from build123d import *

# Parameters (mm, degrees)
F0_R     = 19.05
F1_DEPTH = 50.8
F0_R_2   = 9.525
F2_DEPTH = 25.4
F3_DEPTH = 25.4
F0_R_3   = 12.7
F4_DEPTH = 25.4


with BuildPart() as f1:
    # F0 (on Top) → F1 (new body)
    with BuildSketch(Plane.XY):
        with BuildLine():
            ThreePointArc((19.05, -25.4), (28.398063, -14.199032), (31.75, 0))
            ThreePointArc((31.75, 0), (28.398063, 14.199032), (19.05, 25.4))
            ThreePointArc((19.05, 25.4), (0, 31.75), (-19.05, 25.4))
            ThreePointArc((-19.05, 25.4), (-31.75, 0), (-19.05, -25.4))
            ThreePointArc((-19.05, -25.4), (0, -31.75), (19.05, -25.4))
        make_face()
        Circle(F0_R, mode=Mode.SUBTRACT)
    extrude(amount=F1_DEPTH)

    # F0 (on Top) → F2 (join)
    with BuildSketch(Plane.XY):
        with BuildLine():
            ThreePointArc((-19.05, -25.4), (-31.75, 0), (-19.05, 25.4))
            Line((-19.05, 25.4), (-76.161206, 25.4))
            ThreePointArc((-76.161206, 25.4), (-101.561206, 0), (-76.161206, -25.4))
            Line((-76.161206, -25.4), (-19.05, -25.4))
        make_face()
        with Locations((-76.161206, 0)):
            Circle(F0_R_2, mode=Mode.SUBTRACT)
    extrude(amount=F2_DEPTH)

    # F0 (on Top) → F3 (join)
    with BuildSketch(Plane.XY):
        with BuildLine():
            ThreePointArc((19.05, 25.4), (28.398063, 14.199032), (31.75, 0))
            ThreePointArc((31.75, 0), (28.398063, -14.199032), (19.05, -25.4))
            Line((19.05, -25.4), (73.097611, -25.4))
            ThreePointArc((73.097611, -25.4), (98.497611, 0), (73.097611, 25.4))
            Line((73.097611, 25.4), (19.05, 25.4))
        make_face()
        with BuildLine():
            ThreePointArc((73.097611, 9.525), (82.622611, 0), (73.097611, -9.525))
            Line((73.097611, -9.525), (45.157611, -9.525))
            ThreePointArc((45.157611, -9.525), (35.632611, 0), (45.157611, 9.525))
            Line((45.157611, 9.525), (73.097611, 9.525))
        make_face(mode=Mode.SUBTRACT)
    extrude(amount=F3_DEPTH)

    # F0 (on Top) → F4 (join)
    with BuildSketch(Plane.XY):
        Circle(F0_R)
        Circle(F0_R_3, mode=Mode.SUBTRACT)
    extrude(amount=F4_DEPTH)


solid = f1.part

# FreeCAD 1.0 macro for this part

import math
import FreeCAD as App
import Part
import Sketcher

V = App.Vector
Q = App.Units.Quantity

doc = App.newDocument("Part")
body = doc.addObject("PartDesign::Body", "Body")

sketch1 = doc.addObject("Sketcher::SketchObject", "Sketch")
body.addObject(sketch1)
sketch1.AttachmentSupport = (doc.XY_Plane, [""])
sketch1.MapMode = "FlatFace"
sketch1.addGeometry([
    Part.ArcOfCircle(Part.Circle(V(0, 0, 0), V(0, 0, 1), 32), math.radians(-53), math.radians(0)),
    Part.ArcOfCircle(Part.Circle(V(0, 0, 0), V(0, 0, 1), 32), math.radians(0), math.radians(53)),
    Part.ArcOfCircle(Part.Circle(V(0, 0, 0), V(0, 0, 1), 32), math.radians(53), math.radians(307)),
    Part.Circle(V(0, 0, 0), V(0, 0, 1), 19),
], False)
sketch1.addConstraint([
    Sketcher.Constraint("Tangent", 0, 2, 1, 1),
    Sketcher.Constraint("Tangent", 1, 2, 2, 1),
    Sketcher.Constraint("Tangent", 2, 2, 0, 1),
    Sketcher.Constraint("Coincident", 0, 3, -1, 1),
    Sketcher.Constraint("Coincident", 3, 3, -1, 1),
    Sketcher.Constraint("PointOnObject", 0, 2, -1),
    Sketcher.Constraint("Vertical", 1, 2, 2, 2),
    Sketcher.Constraint("Diameter", 3, Q("1.5 in")),
    Sketcher.Constraint("Radius", 0, Q("1.25 in")),
    Sketcher.Constraint("DistanceY", -1, 1, 1, 2, Q("1 in")),
])
pad1 = doc.addObject("PartDesign::Pad", "Pad")
body.addObject(pad1)
pad1.Profile = sketch1
pad1.Length = Q("2 in")

sketch2 = doc.addObject("Sketcher::SketchObject", "Sketch001")
body.addObject(sketch2)
sketch2.AttachmentSupport = (doc.XY_Plane, [""])
sketch2.MapMode = "FlatFace"
sketch2.addGeometry([
    Part.ArcOfCircle(Part.Circle(V(0, 0, 0), V(0, 0, 1), 32), math.radians(127), math.radians(233)),
    Part.LineSegment(V(-19, 25, 0), V(-76, 25, 0)),
    Part.ArcOfCircle(Part.Circle(V(-76, 0, 0), V(0, 0, 1), 25), math.radians(90), math.radians(270)),
    Part.LineSegment(V(-76, -25, 0), V(-19, -25, 0)),
    Part.Circle(V(-76, 0, 0), V(0, 0, 1), 10),
], False)
sketch2.addConstraint([
    Sketcher.Constraint("Coincident", 0, 1, 1, 1),
    Sketcher.Constraint("Tangent", 1, 2, 2, 1),
    Sketcher.Constraint("Tangent", 2, 2, 3, 1),
    Sketcher.Constraint("Coincident", 3, 2, 0, 2),
    Sketcher.Constraint("Horizontal", 1),
    Sketcher.Constraint("Horizontal", 3),
    Sketcher.Constraint("Coincident", 0, 3, -1, 1),
    Sketcher.Constraint("Coincident", 4, 3, 2, 3),
    Sketcher.Constraint("PointOnObject", 2, 3, -1),
    Sketcher.Constraint("Radius", 2, Q("1 in")),
    Sketcher.Constraint("Diameter", 4, Q("0.75 in")),
    Sketcher.Constraint("Radius", 0, Q("1.25 in")),
    Sketcher.Constraint("DistanceX", 1, 2, 1, 1, Q("57.111206 mm")),
])
pad2 = doc.addObject("PartDesign::Pad", "Pad001")
body.addObject(pad2)
pad2.Profile = sketch2
pad2.Length = Q("1 in")

sketch3 = doc.addObject("Sketcher::SketchObject", "Sketch002")
body.addObject(sketch3)
sketch3.AttachmentSupport = (doc.XY_Plane, [""])
sketch3.MapMode = "FlatFace"
sketch3.addGeometry([
    Part.ArcOfCircle(Part.Circle(V(0, 0, 0), V(0, 0, 1), 32), math.radians(0), math.radians(53)),
    Part.ArcOfCircle(Part.Circle(V(0, 0, 0), V(0, 0, 1), 32), math.radians(-53), math.radians(0)),
    Part.LineSegment(V(19, -25, 0), V(73, -25, 0)),
    Part.ArcOfCircle(Part.Circle(V(73, 0, 0), V(0, 0, 1), 25), math.radians(-90), math.radians(90)),
    Part.LineSegment(V(73, 25, 0), V(19, 25, 0)),
    Part.LineSegment(V(45, 10, 0), V(73, 10, 0)),
    Part.ArcOfCircle(Part.Circle(V(73, 0, 0), V(0, 0, 1), 10), math.radians(-90), math.radians(90)),
    Part.LineSegment(V(73, -10, 0), V(45, -10, 0)),
    Part.ArcOfCircle(Part.Circle(V(45, 0, 0), V(0, 0, 1), 10), math.radians(90), math.radians(270)),
], False)
sketch3.addConstraint([
    Sketcher.Constraint("Tangent", 0, 1, 1, 2),
    Sketcher.Constraint("Coincident", 1, 1, 2, 1),
    Sketcher.Constraint("Tangent", 2, 2, 3, 1),
    Sketcher.Constraint("Tangent", 3, 2, 4, 1),
    Sketcher.Constraint("Coincident", 4, 2, 0, 2),
    Sketcher.Constraint("Tangent", 5, 2, 6, 2),
    Sketcher.Constraint("Tangent", 6, 1, 7, 1),
    Sketcher.Constraint("Tangent", 7, 2, 8, 2),
    Sketcher.Constraint("Tangent", 8, 1, 5, 1),
    Sketcher.Constraint("Horizontal", 2),
    Sketcher.Constraint("Horizontal", 4),
    Sketcher.Constraint("Horizontal", 5),
    Sketcher.Constraint("Horizontal", 7),
    Sketcher.Constraint("Coincident", 0, 3, -1, 1),
    Sketcher.Constraint("Coincident", 6, 3, 3, 3),
    Sketcher.Constraint("Equal", 0, 1),
    Sketcher.Constraint("PointOnObject", 3, 3, -1),
    Sketcher.Constraint("PointOnObject", 0, 1, -1),
    Sketcher.Constraint("Radius", 3, Q("1 in")),
    Sketcher.Constraint("Radius", 0, Q("1.25 in")),
    Sketcher.Constraint("DistanceX", 5, 1, 5, 2, Q("1.1 in")),
    Sketcher.Constraint("Radius", 6, Q("0.375 in")),
    Sketcher.Constraint("DistanceX", 2, 1, 2, 2, Q("54.047611 mm")),
])
pad3 = doc.addObject("PartDesign::Pad", "Pad002")
body.addObject(pad3)
pad3.Profile = sketch3
pad3.Length = Q("1 in")

sketch4 = doc.addObject("Sketcher::SketchObject", "Sketch003")
body.addObject(sketch4)
sketch4.AttachmentSupport = (doc.XY_Plane, [""])
sketch4.MapMode = "FlatFace"
sketch4.addGeometry([
    Part.Circle(V(0, 0, 0), V(0, 0, 1), 19),
    Part.Circle(V(0, 0, 0), V(0, 0, 1), 13),
], False)
sketch4.addConstraint([
    Sketcher.Constraint("Coincident", 0, 3, -1, 1),
    Sketcher.Constraint("Coincident", 1, 3, -1, 1),
    Sketcher.Constraint("Diameter", 1, Q("1 in")),
    Sketcher.Constraint("Diameter", 0, Q("1.5 in")),
])
pad4 = doc.addObject("PartDesign::Pad", "Pad003")
body.addObject(pad4)
pad4.Profile = sketch4
pad4.Length = Q("1 in")

doc.recompute()
